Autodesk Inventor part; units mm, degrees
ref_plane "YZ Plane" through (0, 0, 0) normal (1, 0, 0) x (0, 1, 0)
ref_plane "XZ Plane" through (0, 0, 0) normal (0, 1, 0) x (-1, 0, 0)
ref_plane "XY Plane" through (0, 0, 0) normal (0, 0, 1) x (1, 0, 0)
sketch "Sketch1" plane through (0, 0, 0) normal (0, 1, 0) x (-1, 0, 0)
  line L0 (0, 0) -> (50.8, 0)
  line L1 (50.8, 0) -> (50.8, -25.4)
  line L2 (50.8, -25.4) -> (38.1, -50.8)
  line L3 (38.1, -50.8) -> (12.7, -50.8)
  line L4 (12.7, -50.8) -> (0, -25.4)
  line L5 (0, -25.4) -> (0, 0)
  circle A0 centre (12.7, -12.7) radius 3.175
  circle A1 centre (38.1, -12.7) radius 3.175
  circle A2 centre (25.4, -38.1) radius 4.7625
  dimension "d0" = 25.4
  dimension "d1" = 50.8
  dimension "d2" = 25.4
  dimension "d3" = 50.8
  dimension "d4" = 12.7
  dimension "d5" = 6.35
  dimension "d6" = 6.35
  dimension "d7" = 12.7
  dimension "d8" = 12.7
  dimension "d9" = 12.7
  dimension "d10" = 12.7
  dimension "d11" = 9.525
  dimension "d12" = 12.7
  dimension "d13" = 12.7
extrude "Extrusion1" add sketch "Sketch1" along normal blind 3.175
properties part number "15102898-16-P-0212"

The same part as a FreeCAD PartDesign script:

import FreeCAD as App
import Part
import Sketcher

V = App.Vector
Q = App.Units.Quantity

doc = App.newDocument("Part")
body = doc.addObject("PartDesign::Body", "Body")

sketch1 = doc.addObject("Sketcher::SketchObject", "Sketch")
body.addObject(sketch1)
sketch1.AttachmentSupport = (doc.XZ_Plane, [""])
sketch1.MapMode = "FlatFace"
sketch1.addGeometry(Part.LineSegment(V(-50.8, 0, 0), V(0, 0, 0)), False)
sketch1.addGeometry(Part.LineSegment(V(0, 0, 0), V(0, -25.4, 0)), False)
sketch1.addGeometry(Part.LineSegment(V(0, -25.4, 0), V(-12.7, -50.8, 0)), False)
sketch1.addGeometry(Part.LineSegment(V(-12.7, -50.8, 0), V(-38.1, -50.8, 0)), False)
sketch1.addGeometry(Part.LineSegment(V(-38.1, -50.8, 0), V(-50.8, -25.4, 0)), False)
sketch1.addGeometry(Part.LineSegment(V(-50.8, -25.4, 0), V(-50.8, 0, 0)), False)
sketch1.addGeometry(Part.Circle(V(-25.4, -38.1, 0), V(0, 0, 1), 4.8), False)
sketch1.addGeometry(Part.Circle(V(-12.7, -12.7, 0), V(0, 0, 1), 3.2), False)
sketch1.addGeometry(Part.Circle(V(-38.1, -12.7, 0), V(0, 0, 1), 3.2), False)
sketch1.addConstraint(Sketcher.Constraint("Coincident", 0, 2, 1, 1))
sketch1.addConstraint(Sketcher.Constraint("Coincident", 1, 2, 2, 1))
sketch1.addConstraint(Sketcher.Constraint("Coincident", 2, 2, 3, 1))
sketch1.addConstraint(Sketcher.Constraint("Coincident", 3, 2, 4, 1))
sketch1.addConstraint(Sketcher.Constraint("Coincident", 4, 2, 5, 1))
sketch1.addConstraint(Sketcher.Constraint("Coincident", 5, 2, 0, 1))
sketch1.addConstraint(Sketcher.Constraint("Horizontal", 0))
sketch1.addConstraint(Sketcher.Constraint("Vertical", 1))
sketch1.addConstraint(Sketcher.Constraint("Horizontal", 3))
sketch1.addConstraint(Sketcher.Constraint("Vertical", 5))
sketch1.addConstraint(Sketcher.Constraint("Coincident", 0, 2, -1, 1))
sketch1.addConstraint(Sketcher.Constraint("Equal", 7, 8))
sketch1.addConstraint(Sketcher.Constraint("Horizontal", 7, 3, 8, 3))
sketch1.addConstraint(Sketcher.Constraint("Horizontal", 1, 2, 4, 2))
sketch1.addConstraint(Sketcher.Constraint("Vertical", 7, 3, 2, 2))
sketch1.addConstraint(Sketcher.Constraint("Vertical", 8, 3, 3, 2))
sketch1.addConstraint(Sketcher.Constraint("Equal", 3, 1))
sketch1.addConstraint(Sketcher.Constraint("Equal", 2, 4))
sketch1.addConstraint(Sketcher.Constraint("Diameter", 7, Q("0.25 in")))
sketch1.addConstraint(Sketcher.Constraint("DistanceX", 0, 1, 0, 2, Q("2 in")))
sketch1.addConstraint(Sketcher.Constraint("DistanceX", 3, 2, 3, 1, Q("1 in")))
sketch1.addConstraint(Sketcher.Constraint("Diameter", 6, Q("0.375 in")))
sketch1.addConstraint(Sketcher.Constraint("DistanceX", 6, 3, -1, 1, Q("1 in")))
sketch1.addConstraint(Sketcher.Constraint("DistanceY", 2, 2, -1, 1, Q("2 in")))
sketch1.addConstraint(Sketcher.Constraint("DistanceY", 6, 3, 7, 3, Q("1 in")))
sketch1.addConstraint(Sketcher.Constraint("DistanceY", 7, 3, -1, 1, Q("0.5 in")))
pad1 = doc.addObject("PartDesign::Pad", "Pad")
body.addObject(pad1)
pad1.Profile = sketch1
pad1.Length = Q("0.125 in")
pad1.Reversed = True

doc.recompute()
